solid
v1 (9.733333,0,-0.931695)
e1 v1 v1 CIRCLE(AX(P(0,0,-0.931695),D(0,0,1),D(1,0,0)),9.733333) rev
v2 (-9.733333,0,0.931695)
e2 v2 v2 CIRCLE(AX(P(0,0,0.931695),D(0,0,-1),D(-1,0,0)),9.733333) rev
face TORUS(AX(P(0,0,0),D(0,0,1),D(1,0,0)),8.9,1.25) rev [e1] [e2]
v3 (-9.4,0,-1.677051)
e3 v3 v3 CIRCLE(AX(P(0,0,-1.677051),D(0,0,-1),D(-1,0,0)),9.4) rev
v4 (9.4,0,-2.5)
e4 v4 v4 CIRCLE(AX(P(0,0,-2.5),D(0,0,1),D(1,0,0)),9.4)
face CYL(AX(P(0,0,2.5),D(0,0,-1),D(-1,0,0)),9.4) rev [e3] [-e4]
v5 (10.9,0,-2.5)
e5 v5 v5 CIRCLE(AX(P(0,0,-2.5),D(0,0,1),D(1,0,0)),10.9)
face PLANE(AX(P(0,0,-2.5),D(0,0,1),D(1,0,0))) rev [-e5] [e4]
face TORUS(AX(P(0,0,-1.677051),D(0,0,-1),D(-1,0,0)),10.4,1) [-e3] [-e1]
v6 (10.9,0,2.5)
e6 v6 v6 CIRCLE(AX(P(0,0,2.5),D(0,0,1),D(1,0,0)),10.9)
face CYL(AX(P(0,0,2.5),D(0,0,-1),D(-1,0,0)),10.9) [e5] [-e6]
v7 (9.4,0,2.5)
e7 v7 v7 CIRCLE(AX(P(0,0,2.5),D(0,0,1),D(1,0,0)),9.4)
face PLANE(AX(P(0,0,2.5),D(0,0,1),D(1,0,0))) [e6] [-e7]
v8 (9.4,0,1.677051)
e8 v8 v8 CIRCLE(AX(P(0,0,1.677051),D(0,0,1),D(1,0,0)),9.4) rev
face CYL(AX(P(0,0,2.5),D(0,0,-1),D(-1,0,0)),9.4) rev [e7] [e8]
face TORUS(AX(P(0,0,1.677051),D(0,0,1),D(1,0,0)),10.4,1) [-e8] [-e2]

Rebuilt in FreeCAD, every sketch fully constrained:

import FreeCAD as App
import Part
import Sketcher

V = App.Vector


def edges_at(feature, points):
    """Names of the edges that pass closest to the given points."""
    edges = feature.Shape.Edges
    near = lambda p: min(range(len(edges)), key=lambda i: edges[i].distToShape(Part.Vertex(*p))[0])
    return sorted({f"Edge{near(p) + 1}" for p in points})

doc = App.newDocument("Part")
params = doc.addObject("Spreadsheet::Sheet", "Params")
for row, (alias, value) in enumerate([
    ("sketch1_diameter", "21.8 mm"),
    ("sketch1_diameter2", "18.8 mm"),
    ("pad1_length", "5 mm"),
    ("sketch2_diameter", "2.5 mm"),
    ("groove_angle", "360 deg"),
    ("fillet_radius", "1 mm"),
], start=1):
    params.set(f"A{row}", alias)
    params.set(f"B{row}", "=" + value)
    params.setAlias(f"B{row}", alias)

body = doc.addObject("PartDesign::Body", "Body")

# Sketch on XY plane
sketch1 = body.newObject("Sketcher::SketchObject", "Sketch")
sketch1.AttachmentSupport = (doc.getObject("XY_Plane"), [""])
sketch1.MapMode = "FlatFace"
sketch1.addGeometry([
    Part.Circle(V(0, 0, 0), V(0, 0, 1), 11),
    Part.Circle(V(0, 0, 0), V(0, 0, 1), 9),
], False)
sketch1.addConstraint([
    Sketcher.Constraint("Coincident", 0, 3, -1, 1),
    Sketcher.Constraint("Coincident", 1, 3, -1, 1),
    Sketcher.Constraint("Diameter", 0, 21.8),
    Sketcher.Constraint("Diameter", 1, 18.8),
])
sketch1.setExpression("Constraints[2]", "Params.sketch1_diameter")
sketch1.setExpression("Constraints[3]", "Params.sketch1_diameter2")
pad1 = body.newObject("PartDesign::Pad", "Pad")
pad1.Profile = sketch1
pad1.setExpression("Length", "Params.pad1_length")
pad1.Midplane = True

# Sketch on XZ plane
sketch2 = body.newObject("Sketcher::SketchObject", "Sketch001")
sketch2.AttachmentSupport = (doc.getObject("XZ_Plane"), [""])
sketch2.MapMode = "FlatFace"
sketch2.addGeometry(Part.Circle(V(-8.9, 0, 0), V(0, 0, 1), 1.2), False)
sketch2.addConstraint([
    Sketcher.Constraint("PointOnObject", 0, 3, -1),
    Sketcher.Constraint("Diameter", 0, 2.5),
    Sketcher.Constraint("DistanceX", 0, 3, -1, 1, 8.9),
])
sketch2.setExpression("Constraints[1]", "Params.sketch2_diameter")
groove = body.newObject("PartDesign::Groove", "Groove")
groove.Profile = sketch2
groove.ReferenceAxis = (sketch2, ["V_Axis"])
groove.setExpression("Angle", "Params.groove_angle")
doc.recompute()

fillet = body.newObject("PartDesign::Fillet", "Fillet")
fillet.Base = (groove, edges_at(groove, [(0, 9.4, 1.146), (0, -9.4, -1.146)]))
fillet.setExpression("Radius", "Params.fillet_radius")

doc.recompute()
